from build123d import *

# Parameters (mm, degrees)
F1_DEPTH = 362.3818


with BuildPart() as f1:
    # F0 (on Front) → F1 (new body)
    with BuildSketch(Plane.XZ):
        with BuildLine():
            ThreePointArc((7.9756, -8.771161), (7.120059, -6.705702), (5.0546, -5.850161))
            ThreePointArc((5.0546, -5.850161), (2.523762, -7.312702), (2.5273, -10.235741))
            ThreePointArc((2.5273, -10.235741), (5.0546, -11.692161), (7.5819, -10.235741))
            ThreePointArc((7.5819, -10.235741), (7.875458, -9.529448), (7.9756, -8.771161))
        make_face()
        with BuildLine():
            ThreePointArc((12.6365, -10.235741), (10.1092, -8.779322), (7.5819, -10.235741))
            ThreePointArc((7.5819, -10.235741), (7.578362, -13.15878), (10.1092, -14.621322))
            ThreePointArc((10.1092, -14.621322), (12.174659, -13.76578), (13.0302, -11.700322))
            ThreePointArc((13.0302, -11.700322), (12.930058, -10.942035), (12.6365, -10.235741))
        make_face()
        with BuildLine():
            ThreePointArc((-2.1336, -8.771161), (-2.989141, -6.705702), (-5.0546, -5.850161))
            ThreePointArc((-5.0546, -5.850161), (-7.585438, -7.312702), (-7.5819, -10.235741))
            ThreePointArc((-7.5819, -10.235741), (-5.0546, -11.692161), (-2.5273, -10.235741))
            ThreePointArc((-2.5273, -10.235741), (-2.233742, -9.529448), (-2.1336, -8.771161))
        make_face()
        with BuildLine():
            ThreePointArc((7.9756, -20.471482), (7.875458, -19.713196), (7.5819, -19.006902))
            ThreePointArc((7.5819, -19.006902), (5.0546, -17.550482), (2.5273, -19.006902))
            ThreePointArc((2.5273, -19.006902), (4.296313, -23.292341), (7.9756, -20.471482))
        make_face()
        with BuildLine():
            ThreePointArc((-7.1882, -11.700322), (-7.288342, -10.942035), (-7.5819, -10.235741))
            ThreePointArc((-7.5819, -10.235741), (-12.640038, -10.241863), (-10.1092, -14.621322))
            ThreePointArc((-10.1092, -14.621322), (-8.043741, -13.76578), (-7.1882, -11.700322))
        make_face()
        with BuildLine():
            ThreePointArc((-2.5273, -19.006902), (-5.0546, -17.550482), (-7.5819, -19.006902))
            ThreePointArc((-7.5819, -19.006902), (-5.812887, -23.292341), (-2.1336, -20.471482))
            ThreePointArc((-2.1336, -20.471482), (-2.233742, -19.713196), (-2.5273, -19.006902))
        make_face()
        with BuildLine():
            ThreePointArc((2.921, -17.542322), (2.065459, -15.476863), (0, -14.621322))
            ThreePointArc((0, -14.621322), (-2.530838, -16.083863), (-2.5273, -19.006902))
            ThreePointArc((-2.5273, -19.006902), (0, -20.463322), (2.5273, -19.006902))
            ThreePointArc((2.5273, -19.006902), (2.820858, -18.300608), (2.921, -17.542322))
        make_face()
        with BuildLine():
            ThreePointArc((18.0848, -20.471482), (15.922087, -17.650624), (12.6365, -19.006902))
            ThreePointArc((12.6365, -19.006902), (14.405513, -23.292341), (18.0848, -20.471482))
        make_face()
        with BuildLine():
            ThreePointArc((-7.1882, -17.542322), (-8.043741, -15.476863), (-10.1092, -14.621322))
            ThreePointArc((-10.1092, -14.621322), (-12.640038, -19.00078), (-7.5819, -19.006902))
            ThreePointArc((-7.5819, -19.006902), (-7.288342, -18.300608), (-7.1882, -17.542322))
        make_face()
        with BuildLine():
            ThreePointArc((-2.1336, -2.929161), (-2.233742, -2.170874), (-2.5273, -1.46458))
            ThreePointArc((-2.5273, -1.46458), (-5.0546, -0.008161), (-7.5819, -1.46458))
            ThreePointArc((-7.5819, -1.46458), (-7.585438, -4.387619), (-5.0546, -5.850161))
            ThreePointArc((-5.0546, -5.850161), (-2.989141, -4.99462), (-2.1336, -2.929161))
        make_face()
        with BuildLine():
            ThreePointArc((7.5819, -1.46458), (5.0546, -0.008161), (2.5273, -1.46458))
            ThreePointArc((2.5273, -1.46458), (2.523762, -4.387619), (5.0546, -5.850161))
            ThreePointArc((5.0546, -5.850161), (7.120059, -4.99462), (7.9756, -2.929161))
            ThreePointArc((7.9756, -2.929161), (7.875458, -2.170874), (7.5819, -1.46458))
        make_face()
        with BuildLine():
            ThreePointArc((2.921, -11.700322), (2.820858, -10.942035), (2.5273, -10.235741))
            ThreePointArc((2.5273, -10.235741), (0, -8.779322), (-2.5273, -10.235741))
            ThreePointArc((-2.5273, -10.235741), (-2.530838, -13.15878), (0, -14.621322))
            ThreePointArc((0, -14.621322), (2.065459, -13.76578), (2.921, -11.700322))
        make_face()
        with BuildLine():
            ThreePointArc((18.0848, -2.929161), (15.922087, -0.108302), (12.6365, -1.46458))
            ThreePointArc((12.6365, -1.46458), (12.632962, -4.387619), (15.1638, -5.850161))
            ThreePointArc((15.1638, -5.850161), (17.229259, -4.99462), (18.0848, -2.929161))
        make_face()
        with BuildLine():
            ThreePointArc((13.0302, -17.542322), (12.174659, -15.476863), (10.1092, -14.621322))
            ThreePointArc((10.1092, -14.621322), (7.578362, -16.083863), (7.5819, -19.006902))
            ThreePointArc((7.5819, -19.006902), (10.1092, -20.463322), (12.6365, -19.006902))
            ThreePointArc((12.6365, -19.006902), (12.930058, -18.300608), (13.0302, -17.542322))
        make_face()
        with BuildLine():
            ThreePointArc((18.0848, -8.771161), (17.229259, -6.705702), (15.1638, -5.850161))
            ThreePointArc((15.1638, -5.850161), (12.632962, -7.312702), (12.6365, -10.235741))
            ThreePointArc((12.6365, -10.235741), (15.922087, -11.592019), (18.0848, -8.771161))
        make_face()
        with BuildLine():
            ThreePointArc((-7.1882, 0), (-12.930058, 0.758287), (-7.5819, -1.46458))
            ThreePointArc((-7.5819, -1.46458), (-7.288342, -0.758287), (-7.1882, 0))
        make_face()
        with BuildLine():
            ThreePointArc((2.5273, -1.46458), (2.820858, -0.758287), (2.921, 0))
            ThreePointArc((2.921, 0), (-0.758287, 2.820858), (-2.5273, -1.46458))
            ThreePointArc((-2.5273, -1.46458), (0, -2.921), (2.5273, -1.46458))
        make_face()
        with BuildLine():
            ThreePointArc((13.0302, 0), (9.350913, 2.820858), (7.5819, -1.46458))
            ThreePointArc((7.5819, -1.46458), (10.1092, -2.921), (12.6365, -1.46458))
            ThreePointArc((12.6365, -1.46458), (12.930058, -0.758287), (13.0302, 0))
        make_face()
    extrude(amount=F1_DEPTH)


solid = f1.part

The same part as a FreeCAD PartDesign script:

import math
import FreeCAD as App
import Part
import Sketcher
Q = App.Units.Quantity

doc = App.newDocument("Part")
body = doc.addObject("PartDesign::Body", "Body")
body.AllowCompound = True

sketch1 = body.newObject("Sketcher::SketchObject", "Sketch")
sketch1.AttachmentSupport = (doc.getObject("XZ_Plane"), [""])
sketch1.MapMode = "FlatFace"
sketch1.addGeometry(Part.ArcOfCircle(Part.Circle(App.Vector(5.1, -8.8, 0), App.Vector(0, 0, 1), 2.9), math.radians(0), math.radians(90)), False)
sketch1.addGeometry(Part.ArcOfCircle(Part.Circle(App.Vector(5.1, -8.8, 0), App.Vector(0, 0, 1), 2.9), math.radians(90), math.radians(210)), False)
sketch1.addGeometry(Part.ArcOfCircle(Part.Circle(App.Vector(5.1, -8.8, 0), App.Vector(0, 0, 1), 2.9), math.radians(-150), math.radians(-30)), False)
sketch1.addGeometry(Part.ArcOfCircle(Part.Circle(App.Vector(5.1, -8.8, 0), App.Vector(0, 0, 1), 2.9), math.radians(-30), math.radians(0)), False)
sketch1.addGeometry(Part.ArcOfCircle(Part.Circle(App.Vector(10.1, -11.7, 0), App.Vector(0, 0, 1), 2.9), math.radians(30), math.radians(150)), False)
sketch1.addGeometry(Part.ArcOfCircle(Part.Circle(App.Vector(10.1, -11.7, 0), App.Vector(0, 0, 1), 2.9), math.radians(150), math.radians(270)), False)
sketch1.addGeometry(Part.ArcOfCircle(Part.Circle(App.Vector(10.1, -11.7, 0), App.Vector(0, 0, 1), 2.9), math.radians(-90), math.radians(0)), False)
sketch1.addGeometry(Part.ArcOfCircle(Part.Circle(App.Vector(10.1, -11.7, 0), App.Vector(0, 0, 1), 2.9), math.radians(0), math.radians(30)), False)
sketch1.addGeometry(Part.ArcOfCircle(Part.Circle(App.Vector(-5.1, -8.8, 0), App.Vector(0, 0, 1), 2.9), math.radians(0), math.radians(90)), False)
sketch1.addGeometry(Part.ArcOfCircle(Part.Circle(App.Vector(-5.1, -8.8, 0), App.Vector(0, 0, 1), 2.9), math.radians(90), math.radians(210)), False)
sketch1.addGeometry(Part.ArcOfCircle(Part.Circle(App.Vector(-5.1, -8.8, 0), App.Vector(0, 0, 1), 2.9), math.radians(-150), math.radians(-30)), False)
sketch1.addGeometry(Part.ArcOfCircle(Part.Circle(App.Vector(-5.1, -8.8, 0), App.Vector(0, 0, 1), 2.9), math.radians(-30), math.radians(0)), False)
sketch1.addGeometry(Part.ArcOfCircle(Part.Circle(App.Vector(5.1, -20.5, 0), App.Vector(0, 0, 1), 2.9), math.radians(0), math.radians(30)), False)
sketch1.addGeometry(Part.ArcOfCircle(Part.Circle(App.Vector(5.1, -20.5, 0), App.Vector(0, 0, 1), 2.9), math.radians(30), math.radians(150)), False)
sketch1.addGeometry(Part.ArcOfCircle(Part.Circle(App.Vector(5.1, -20.5, 0), App.Vector(0, 0, 1), 2.9), math.radians(150), math.radians(360)), False)
sketch1.addGeometry(Part.ArcOfCircle(Part.Circle(App.Vector(-10.1, -11.7, 0), App.Vector(0, 0, 1), 2.9), math.radians(0), math.radians(30)), False)
sketch1.addGeometry(Part.ArcOfCircle(Part.Circle(App.Vector(-10.1, -11.7, 0), App.Vector(0, 0, 1), 2.9), math.radians(30), math.radians(270)), False)
sketch1.addGeometry(Part.ArcOfCircle(Part.Circle(App.Vector(-10.1, -11.7, 0), App.Vector(0, 0, 1), 2.9), math.radians(-90), math.radians(0)), False)
sketch1.addGeometry(Part.ArcOfCircle(Part.Circle(App.Vector(-5.1, -20.5, 0), App.Vector(0, 0, 1), 2.9), math.radians(30), math.radians(150)), False)
sketch1.addGeometry(Part.ArcOfCircle(Part.Circle(App.Vector(-5.1, -20.5, 0), App.Vector(0, 0, 1), 2.9), math.radians(150), math.radians(360)), False)
sketch1.addGeometry(Part.ArcOfCircle(Part.Circle(App.Vector(-5.1, -20.5, 0), App.Vector(0, 0, 1), 2.9), math.radians(0), math.radians(30)), False)
sketch1.addGeometry(Part.ArcOfCircle(Part.Circle(App.Vector(0, -17.5, 0), App.Vector(0, 0, 1), 2.9), math.radians(0), math.radians(90)), False)
sketch1.addGeometry(Part.ArcOfCircle(Part.Circle(App.Vector(0, -17.5, 0), App.Vector(0, 0, 1), 2.9), math.radians(90), math.radians(210)), False)
sketch1.addGeometry(Part.ArcOfCircle(Part.Circle(App.Vector(0, -17.5, 0), App.Vector(0, 0, 1), 2.9), math.radians(-150), math.radians(-30)), False)
sketch1.addGeometry(Part.ArcOfCircle(Part.Circle(App.Vector(0, -17.5, 0), App.Vector(0, 0, 1), 2.9), math.radians(-30), math.radians(0)), False)
sketch1.addGeometry(Part.ArcOfCircle(Part.Circle(App.Vector(15.2, -20.5, 0), App.Vector(0, 0, 1), 2.9), math.radians(0), math.radians(150)), False)
sketch1.addGeometry(Part.ArcOfCircle(Part.Circle(App.Vector(15.2, -20.5, 0), App.Vector(0, 0, 1), 2.9), math.radians(150), math.radians(360)), False)
sketch1.addGeometry(Part.ArcOfCircle(Part.Circle(App.Vector(-10.1, -17.5, 0), App.Vector(0, 0, 1), 2.9), math.radians(0), math.radians(90)), False)
sketch1.addGeometry(Part.ArcOfCircle(Part.Circle(App.Vector(-10.1, -17.5, 0), App.Vector(0, 0, 1), 2.9), math.radians(90), math.radians(330)), False)
sketch1.addGeometry(Part.ArcOfCircle(Part.Circle(App.Vector(-10.1, -17.5, 0), App.Vector(0, 0, 1), 2.9), math.radians(-30), math.radians(0)), False)
sketch1.addGeometry(Part.ArcOfCircle(Part.Circle(App.Vector(-5.1, -2.9, 0), App.Vector(0, 0, 1), 2.9), math.radians(0), math.radians(30)), False)
sketch1.addGeometry(Part.ArcOfCircle(Part.Circle(App.Vector(-5.1, -2.9, 0), App.Vector(0, 0, 1), 2.9), math.radians(30), math.radians(150)), False)
sketch1.addGeometry(Part.ArcOfCircle(Part.Circle(App.Vector(-5.1, -2.9, 0), App.Vector(0, 0, 1), 2.9), math.radians(150), math.radians(270)), False)
sketch1.addGeometry(Part.ArcOfCircle(Part.Circle(App.Vector(-5.1, -2.9, 0), App.Vector(0, 0, 1), 2.9), math.radians(-90), math.radians(0)), False)
sketch1.addGeometry(Part.ArcOfCircle(Part.Circle(App.Vector(5.1, -2.9, 0), App.Vector(0, 0, 1), 2.9), math.radians(30), math.radians(150)), False)
sketch1.addGeometry(Part.ArcOfCircle(Part.Circle(App.Vector(5.1, -2.9, 0), App.Vector(0, 0, 1), 2.9), math.radians(150), math.radians(270)), False)
sketch1.addGeometry(Part.ArcOfCircle(Part.Circle(App.Vector(5.1, -2.9, 0), App.Vector(0, 0, 1), 2.9), math.radians(-90), math.radians(0)), False)
sketch1.addGeometry(Part.ArcOfCircle(Part.Circle(App.Vector(5.1, -2.9, 0), App.Vector(0, 0, 1), 2.9), math.radians(0), math.radians(30)), False)
sketch1.addGeometry(Part.ArcOfCircle(Part.Circle(App.Vector(0, -11.7, 0), App.Vector(0, 0, 1), 2.9), math.radians(0), math.radians(30)), False)
sketch1.addGeometry(Part.ArcOfCircle(Part.Circle(App.Vector(0, -11.7, 0), App.Vector(0, 0, 1), 2.9), math.radians(30), math.radians(150)), False)
sketch1.addGeometry(Part.ArcOfCircle(Part.Circle(App.Vector(0, -11.7, 0), App.Vector(0, 0, 1), 2.9), math.radians(150), math.radians(270)), False)
sketch1.addGeometry(Part.ArcOfCircle(Part.Circle(App.Vector(0, -11.7, 0), App.Vector(0, 0, 1), 2.9), math.radians(-90), math.radians(0)), False)
sketch1.addGeometry(Part.ArcOfCircle(Part.Circle(App.Vector(15.2, -2.9, 0), App.Vector(0, 0, 1), 2.9), math.radians(0), math.radians(150)), False)
sketch1.addGeometry(Part.ArcOfCircle(Part.Circle(App.Vector(15.2, -2.9, 0), App.Vector(0, 0, 1), 2.9), math.radians(150), math.radians(270)), False)
sketch1.addGeometry(Part.ArcOfCircle(Part.Circle(App.Vector(15.2, -2.9, 0), App.Vector(0, 0, 1), 2.9), math.radians(-90), math.radians(0)), False)
sketch1.addGeometry(Part.ArcOfCircle(Part.Circle(App.Vector(10.1, -17.5, 0), App.Vector(0, 0, 1), 2.9), math.radians(0), math.radians(90)), False)
sketch1.addGeometry(Part.ArcOfCircle(Part.Circle(App.Vector(10.1, -17.5, 0), App.Vector(0, 0, 1), 2.9), math.radians(90), math.radians(210)), False)
sketch1.addGeometry(Part.ArcOfCircle(Part.Circle(App.Vector(10.1, -17.5, 0), App.Vector(0, 0, 1), 2.9), math.radians(-150), math.radians(-30)), False)
sketch1.addGeometry(Part.ArcOfCircle(Part.Circle(App.Vector(10.1, -17.5, 0), App.Vector(0, 0, 1), 2.9), math.radians(-30), math.radians(0)), False)
sketch1.addGeometry(Part.ArcOfCircle(Part.Circle(App.Vector(15.2, -8.8, 0), App.Vector(0, 0, 1), 2.9), math.radians(0), math.radians(90)), False)
sketch1.addGeometry(Part.ArcOfCircle(Part.Circle(App.Vector(15.2, -8.8, 0), App.Vector(0, 0, 1), 2.9), math.radians(90), math.radians(210)), False)
sketch1.addGeometry(Part.ArcOfCircle(Part.Circle(App.Vector(15.2, -8.8, 0), App.Vector(0, 0, 1), 2.9), math.radians(-150), math.radians(0)), False)
sketch1.addGeometry(Part.ArcOfCircle(Part.Circle(App.Vector(-10.1, 0, 0), App.Vector(0, 0, 1), 2.9), math.radians(0), math.radians(330)), False)
sketch1.addGeometry(Part.ArcOfCircle(Part.Circle(App.Vector(-10.1, 0, 0), App.Vector(0, 0, 1), 2.9), math.radians(-30), math.radians(0)), False)
sketch1.addGeometry(Part.ArcOfCircle(Part.Circle(App.Vector(0, 0, 0), App.Vector(0, 0, 1), 2.9), math.radians(-30), math.radians(0)), False)
sketch1.addGeometry(Part.ArcOfCircle(Part.Circle(App.Vector(0, 0, 0), App.Vector(0, 0, 1), 2.9), math.radians(0), math.radians(210)), False)
sketch1.addGeometry(Part.ArcOfCircle(Part.Circle(App.Vector(0, 0, 0), App.Vector(0, 0, 1), 2.9), math.radians(-150), math.radians(-30)), False)
sketch1.addGeometry(Part.ArcOfCircle(Part.Circle(App.Vector(10.1, 0, 0), App.Vector(0, 0, 1), 2.9), math.radians(0), math.radians(210)), False)
sketch1.addGeometry(Part.ArcOfCircle(Part.Circle(App.Vector(10.1, 0, 0), App.Vector(0, 0, 1), 2.9), math.radians(-150), math.radians(-30)), False)
sketch1.addGeometry(Part.ArcOfCircle(Part.Circle(App.Vector(10.1, 0, 0), App.Vector(0, 0, 1), 2.9), math.radians(-30), math.radians(0)), False)
sketch1.addConstraint(Sketcher.Constraint("Tangent", 0, 2, 1, 1))
sketch1.addConstraint(Sketcher.Constraint("Tangent", 1, 2, 2, 1))
sketch1.addConstraint(Sketcher.Constraint("Tangent", 2, 2, 3, 1))
sketch1.addConstraint(Sketcher.Constraint("Tangent", 3, 2, 0, 1))
sketch1.addConstraint(Sketcher.Constraint("Tangent", 4, 2, 5, 1))
sketch1.addConstraint(Sketcher.Constraint("Tangent", 5, 2, 6, 1))
sketch1.addConstraint(Sketcher.Constraint("Tangent", 6, 2, 7, 1))
sketch1.addConstraint(Sketcher.Constraint("Tangent", 7, 2, 4, 1))
sketch1.addConstraint(Sketcher.Constraint("Tangent", 8, 2, 9, 1))
sketch1.addConstraint(Sketcher.Constraint("Tangent", 9, 2, 10, 1))
sketch1.addConstraint(Sketcher.Constraint("Tangent", 10, 2, 11, 1))
sketch1.addConstraint(Sketcher.Constraint("Tangent", 11, 2, 8, 1))
sketch1.addConstraint(Sketcher.Constraint("Tangent", 12, 2, 13, 1))
sketch1.addConstraint(Sketcher.Constraint("Tangent", 13, 2, 14, 1))
sketch1.addConstraint(Sketcher.Constraint("Tangent", 14, 2, 12, 1))
sketch1.addConstraint(Sketcher.Constraint("Tangent", 15, 2, 16, 1))
sketch1.addConstraint(Sketcher.Constraint("Tangent", 16, 2, 17, 1))
sketch1.addConstraint(Sketcher.Constraint("Tangent", 17, 2, 15, 1))
sketch1.addConstraint(Sketcher.Constraint("Tangent", 18, 2, 19, 1))
sketch1.addConstraint(Sketcher.Constraint("Tangent", 19, 2, 20, 1))
sketch1.addConstraint(Sketcher.Constraint("Tangent", 20, 2, 18, 1))
sketch1.addConstraint(Sketcher.Constraint("Tangent", 21, 2, 22, 1))
sketch1.addConstraint(Sketcher.Constraint("Tangent", 22, 2, 23, 1))
sketch1.addConstraint(Sketcher.Constraint("Tangent", 23, 2, 24, 1))
sketch1.addConstraint(Sketcher.Constraint("Tangent", 24, 2, 21, 1))
sketch1.addConstraint(Sketcher.Constraint("Tangent", 25, 1, 26, 2))
sketch1.addConstraint(Sketcher.Constraint("Coincident", 26, 1, 25, 2))
sketch1.addConstraint(Sketcher.Constraint("Tangent", 27, 2, 28, 1))
sketch1.addConstraint(Sketcher.Constraint("Tangent", 28, 2, 29, 1))
sketch1.addConstraint(Sketcher.Constraint("Tangent", 29, 2, 27, 1))
sketch1.addConstraint(Sketcher.Constraint("Tangent", 30, 2, 31, 1))
sketch1.addConstraint(Sketcher.Constraint("Tangent", 31, 2, 32, 1))
sketch1.addConstraint(Sketcher.Constraint("Tangent", 32, 2, 33, 1))
sketch1.addConstraint(Sketcher.Constraint("Tangent", 33, 2, 30, 1))
sketch1.addConstraint(Sketcher.Constraint("Tangent", 34, 2, 35, 1))
sketch1.addConstraint(Sketcher.Constraint("Tangent", 35, 2, 36, 1))
sketch1.addConstraint(Sketcher.Constraint("Tangent", 36, 2, 37, 1))
sketch1.addConstraint(Sketcher.Constraint("Tangent", 37, 2, 34, 1))
sketch1.addConstraint(Sketcher.Constraint("Tangent", 38, 2, 39, 1))
sketch1.addConstraint(Sketcher.Constraint("Tangent", 39, 2, 40, 1))
sketch1.addConstraint(Sketcher.Constraint("Tangent", 40, 2, 41, 1))
sketch1.addConstraint(Sketcher.Constraint("Tangent", 41, 2, 38, 1))
sketch1.addConstraint(Sketcher.Constraint("Tangent", 42, 2, 43, 1))
sketch1.addConstraint(Sketcher.Constraint("Tangent", 43, 2, 44, 1))
sketch1.addConstraint(Sketcher.Constraint("Tangent", 44, 2, 42, 1))
sketch1.addConstraint(Sketcher.Constraint("Tangent", 45, 2, 46, 1))
sketch1.addConstraint(Sketcher.Constraint("Tangent", 46, 2, 47, 1))
sketch1.addConstraint(Sketcher.Constraint("Tangent", 47, 2, 48, 1))
sketch1.addConstraint(Sketcher.Constraint("Tangent", 48, 2, 45, 1))
sketch1.addConstraint(Sketcher.Constraint("Tangent", 49, 2, 50, 1))
sketch1.addConstraint(Sketcher.Constraint("Tangent", 50, 2, 51, 1))
sketch1.addConstraint(Sketcher.Constraint("Tangent", 51, 2, 49, 1))
sketch1.addConstraint(Sketcher.Constraint("Tangent", 52, 1, 53, 2))
sketch1.addConstraint(Sketcher.Constraint("Coincident", 53, 1, 52, 2))
sketch1.addConstraint(Sketcher.Constraint("Tangent", 54, 2, 55, 1))
sketch1.addConstraint(Sketcher.Constraint("Tangent", 55, 2, 56, 1))
sketch1.addConstraint(Sketcher.Constraint("Tangent", 56, 2, 54, 1))
sketch1.addConstraint(Sketcher.Constraint("Tangent", 57, 2, 58, 1))
sketch1.addConstraint(Sketcher.Constraint("Tangent", 58, 2, 59, 1))
sketch1.addConstraint(Sketcher.Constraint("Tangent", 59, 2, 57, 1))
sketch1.addConstraint(Sketcher.Constraint("Coincident", 54, 3, -1, 1))
sketch1.addConstraint(Sketcher.Constraint("Coincident", 4, 2, 2, 2))
sketch1.addConstraint(Sketcher.Constraint("Coincident", 15, 2, 9, 2))
sketch1.addConstraint(Sketcher.Constraint("Coincident", 22, 2, 20, 2))
sketch1.addConstraint(Sketcher.Constraint("Coincident", 23, 2, 13, 2))
sketch1.addConstraint(Sketcher.Constraint("Coincident", 27, 2, 16, 2))
sketch1.addConstraint(Sketcher.Constraint("Coincident", 28, 2, 18, 2))
sketch1.addConstraint(Sketcher.Constraint("Coincident", 32, 2, 8, 2))
sketch1.addConstraint(Sketcher.Constraint("Coincident", 35, 2, 0, 2))
sketch1.addConstraint(Sketcher.Constraint("Coincident", 38, 2, 1, 2))
sketch1.addConstraint(Sketcher.Constraint("Coincident", 39, 2, 10, 2))
sketch1.addConstraint(Sketcher.Constraint("Coincident", 40, 2, 21, 2))
sketch1.addConstraint(Sketcher.Constraint("Coincident", 45, 2, 5, 2))
sketch1.addConstraint(Sketcher.Constraint("Coincident", 46, 2, 12, 2))
sketch1.addConstraint(Sketcher.Constraint("Coincident", 47, 2, 26, 1))
sketch1.addConstraint(Sketcher.Constraint("Coincident", 49, 2, 43, 2))
sketch1.addConstraint(Sketcher.Constraint("Coincident", 50, 2, 7, 2))
sketch1.addConstraint(Sketcher.Constraint("Coincident", 53, 1, 31, 2))
sketch1.addConstraint(Sketcher.Constraint("Coincident", 55, 2, 30, 2))
sketch1.addConstraint(Sketcher.Constraint("Coincident", 56, 2, 34, 2))
sketch1.addConstraint(Sketcher.Constraint("Coincident", 57, 2, 37, 2))
sketch1.addConstraint(Sketcher.Constraint("Coincident", 58, 2, 42, 2))
sketch1.addConstraint(Sketcher.Constraint("Equal", 0, 1))
sketch1.addConstraint(Sketcher.Constraint("Equal", 2, 4))
sketch1.addConstraint(Sketcher.Constraint("Equal", 4, 5))
sketch1.addConstraint(Sketcher.Constraint("Equal", 6, 8))
sketch1.addConstraint(Sketcher.Constraint("Equal", 8, 9))
sketch1.addConstraint(Sketcher.Constraint("Equal", 7, 12))
sketch1.addConstraint(Sketcher.Constraint("Equal", 12, 15))
sketch1.addConstraint(Sketcher.Constraint("Equal", 17, 18))
sketch1.addConstraint(Sketcher.Constraint("Equal", 19, 21))
sketch1.addConstraint(Sketcher.Constraint("Equal", 21, 22))
sketch1.addConstraint(Sketcher.Constraint("Equal", 23, 25))
sketch1.addConstraint(Sketcher.Constraint("Equal", 26, 27))
sketch1.addConstraint(Sketcher.Constraint("Equal", 29, 30))
sketch1.addConstraint(Sketcher.Constraint("Equal", 28, 31))
sketch1.addConstraint(Sketcher.Constraint("Equal", 33, 34))
sketch1.addConstraint(Sketcher.Constraint("Equal", 34, 35))
sketch1.addConstraint(Sketcher.Constraint("Equal", 37, 38))
sketch1.addConstraint(Sketcher.Constraint("Equal", 36, 39))
sketch1.addConstraint(Sketcher.Constraint("Equal", 41, 42))
sketch1.addConstraint(Sketcher.Constraint("Equal", 44, 45))
sketch1.addConstraint(Sketcher.Constraint("Equal", 45, 46))
sketch1.addConstraint(Sketcher.Constraint("Equal", 47, 49))
sketch1.addConstraint(Sketcher.Constraint("Equal", 51, 52))
sketch1.addConstraint(Sketcher.Constraint("Equal", 53, 54))
sketch1.addConstraint(Sketcher.Constraint("Equal", 56, 57))
sketch1.addConstraint(Sketcher.Constraint("Symmetric", 52, 3, 57, 3, -1, 1))
sketch1.addConstraint(Sketcher.Constraint("Symmetric", 0, 3, 8, 3, -2))
sketch1.addConstraint(Sketcher.Constraint("Symmetric", 13, 3, 18, 3, -2))
sketch1.addConstraint(Sketcher.Constraint("Symmetric", 5, 2, 16, 2, -2))
sketch1.addConstraint(Sketcher.Constraint("PointOnObject", 21, 2, -2))
sketch1.addConstraint(Sketcher.Constraint("PointOnObject", 52, 1, -1))
sketch1.addConstraint(Sketcher.Constraint("PointOnObject", 54, 2, -1))
sketch1.addConstraint(Sketcher.Constraint("PointOnObject", 59, 2, -1))
sketch1.addConstraint(Sketcher.Constraint("Horizontal", 19, 3, 25, 3))
sketch1.addConstraint(Sketcher.Constraint("Horizontal", 23, 3, 27, 3))
sketch1.addConstraint(Sketcher.Constraint("Horizontal", 36, 3, 42, 3))
sketch1.addConstraint(Sketcher.Constraint("Horizontal", 1, 2, 2, 2))
sketch1.addConstraint(Sketcher.Constraint("Horizontal", 51, 3, 3, 2))
sketch1.addConstraint(Sketcher.Constraint("Horizontal", 41, 3, 6, 2))
sketch1.addConstraint(Sketcher.Constraint("Horizontal", 4, 2, 7, 2))
sketch1.addConstraint(Sketcher.Constraint("Horizontal", 7, 2, 9, 2))
sketch1.addConstraint(Sketcher.Constraint("Horizontal", 9, 2, 10, 2))
sketch1.addConstraint(Sketcher.Constraint("Horizontal", 3, 2, 11, 2))
sketch1.addConstraint(Sketcher.Constraint("Horizontal", 12, 2, 13, 2))
sketch1.addConstraint(Sketcher.Constraint("Horizontal", 26, 3, 14, 2))
sketch1.addConstraint(Sketcher.Constraint("Horizontal", 6, 2, 17, 2))
sketch1.addConstraint(Sketcher.Constraint("Horizontal", 13, 2, 18, 2))
sketch1.addConstraint(Sketcher.Constraint("Horizontal", 14, 2, 19, 2))
sketch1.addConstraint(Sketcher.Constraint("Horizontal", 18, 2, 20, 2))
sketch1.addConstraint(Sketcher.Constraint("Horizontal", 47, 3, 24, 2))
sketch1.addConstraint(Sketcher.Constraint("Horizontal", 19, 2, 25, 1))
sketch1.addConstraint(Sketcher.Constraint("Horizontal", 23, 2, 26, 1))
sketch1.addConstraint(Sketcher.Constraint("Horizontal", 24, 2, 29, 2))
sketch1.addConstraint(Sketcher.Constraint("Horizontal", 30, 2, 31, 2))
sketch1.addConstraint(Sketcher.Constraint("Horizontal", 44, 3, 33, 2))
sketch1.addConstraint(Sketcher.Constraint("Horizontal", 31, 2, 34, 2))
sketch1.addConstraint(Sketcher.Constraint("Horizontal", 33, 2, 36, 2))
sketch1.addConstraint(Sketcher.Constraint("Horizontal", 34, 2, 37, 2))
sketch1.addConstraint(Sketcher.Constraint("Horizontal", 17, 2, 41, 2))
sketch1.addConstraint(Sketcher.Constraint("Horizontal", 37, 2, 42, 2))
sketch1.addConstraint(Sketcher.Constraint("Horizontal", 36, 2, 44, 2))
sketch1.addConstraint(Sketcher.Constraint("Horizontal", 29, 2, 48, 2))
sketch1.addConstraint(Sketcher.Constraint("Horizontal", 11, 2, 51, 2))
sketch1.addConstraint(Sketcher.Constraint("Vertical", 2, 3, 13, 3))
sketch1.addConstraint(Sketcher.Constraint("Vertical", 20, 3, 30, 3))
sketch1.addConstraint(Sketcher.Constraint("Vertical", 36, 3, 0, 2))
sketch1.addConstraint(Sketcher.Constraint("Vertical", 58, 3, 5, 2))
sketch1.addConstraint(Sketcher.Constraint("Vertical", 33, 3, 8, 2))
sketch1.addConstraint(Sketcher.Constraint("Vertical", 4, 2, 12, 2))
sketch1.addConstraint(Sketcher.Constraint("Vertical", 22, 2, 30, 2))
sketch1.addConstraint(Sketcher.Constraint("Vertical", 51, 3, 43, 2))
sketch1.addConstraint(Sketcher.Constraint("Radius", 0, Q("0.115 in")))
sketch1.addConstraint(Sketcher.Constraint("DistanceX", -1, 1, 0, 3, Q("0.199 in")))
sketch1.addConstraint(Sketcher.Constraint("DistanceX", -1, 1, 1, 2, Q("0.0995 in")))
pad1 = body.newObject("PartDesign::Pad", "Pad")
pad1.Profile = sketch1
pad1.Length = Q("14.267 in")

doc.recompute()
